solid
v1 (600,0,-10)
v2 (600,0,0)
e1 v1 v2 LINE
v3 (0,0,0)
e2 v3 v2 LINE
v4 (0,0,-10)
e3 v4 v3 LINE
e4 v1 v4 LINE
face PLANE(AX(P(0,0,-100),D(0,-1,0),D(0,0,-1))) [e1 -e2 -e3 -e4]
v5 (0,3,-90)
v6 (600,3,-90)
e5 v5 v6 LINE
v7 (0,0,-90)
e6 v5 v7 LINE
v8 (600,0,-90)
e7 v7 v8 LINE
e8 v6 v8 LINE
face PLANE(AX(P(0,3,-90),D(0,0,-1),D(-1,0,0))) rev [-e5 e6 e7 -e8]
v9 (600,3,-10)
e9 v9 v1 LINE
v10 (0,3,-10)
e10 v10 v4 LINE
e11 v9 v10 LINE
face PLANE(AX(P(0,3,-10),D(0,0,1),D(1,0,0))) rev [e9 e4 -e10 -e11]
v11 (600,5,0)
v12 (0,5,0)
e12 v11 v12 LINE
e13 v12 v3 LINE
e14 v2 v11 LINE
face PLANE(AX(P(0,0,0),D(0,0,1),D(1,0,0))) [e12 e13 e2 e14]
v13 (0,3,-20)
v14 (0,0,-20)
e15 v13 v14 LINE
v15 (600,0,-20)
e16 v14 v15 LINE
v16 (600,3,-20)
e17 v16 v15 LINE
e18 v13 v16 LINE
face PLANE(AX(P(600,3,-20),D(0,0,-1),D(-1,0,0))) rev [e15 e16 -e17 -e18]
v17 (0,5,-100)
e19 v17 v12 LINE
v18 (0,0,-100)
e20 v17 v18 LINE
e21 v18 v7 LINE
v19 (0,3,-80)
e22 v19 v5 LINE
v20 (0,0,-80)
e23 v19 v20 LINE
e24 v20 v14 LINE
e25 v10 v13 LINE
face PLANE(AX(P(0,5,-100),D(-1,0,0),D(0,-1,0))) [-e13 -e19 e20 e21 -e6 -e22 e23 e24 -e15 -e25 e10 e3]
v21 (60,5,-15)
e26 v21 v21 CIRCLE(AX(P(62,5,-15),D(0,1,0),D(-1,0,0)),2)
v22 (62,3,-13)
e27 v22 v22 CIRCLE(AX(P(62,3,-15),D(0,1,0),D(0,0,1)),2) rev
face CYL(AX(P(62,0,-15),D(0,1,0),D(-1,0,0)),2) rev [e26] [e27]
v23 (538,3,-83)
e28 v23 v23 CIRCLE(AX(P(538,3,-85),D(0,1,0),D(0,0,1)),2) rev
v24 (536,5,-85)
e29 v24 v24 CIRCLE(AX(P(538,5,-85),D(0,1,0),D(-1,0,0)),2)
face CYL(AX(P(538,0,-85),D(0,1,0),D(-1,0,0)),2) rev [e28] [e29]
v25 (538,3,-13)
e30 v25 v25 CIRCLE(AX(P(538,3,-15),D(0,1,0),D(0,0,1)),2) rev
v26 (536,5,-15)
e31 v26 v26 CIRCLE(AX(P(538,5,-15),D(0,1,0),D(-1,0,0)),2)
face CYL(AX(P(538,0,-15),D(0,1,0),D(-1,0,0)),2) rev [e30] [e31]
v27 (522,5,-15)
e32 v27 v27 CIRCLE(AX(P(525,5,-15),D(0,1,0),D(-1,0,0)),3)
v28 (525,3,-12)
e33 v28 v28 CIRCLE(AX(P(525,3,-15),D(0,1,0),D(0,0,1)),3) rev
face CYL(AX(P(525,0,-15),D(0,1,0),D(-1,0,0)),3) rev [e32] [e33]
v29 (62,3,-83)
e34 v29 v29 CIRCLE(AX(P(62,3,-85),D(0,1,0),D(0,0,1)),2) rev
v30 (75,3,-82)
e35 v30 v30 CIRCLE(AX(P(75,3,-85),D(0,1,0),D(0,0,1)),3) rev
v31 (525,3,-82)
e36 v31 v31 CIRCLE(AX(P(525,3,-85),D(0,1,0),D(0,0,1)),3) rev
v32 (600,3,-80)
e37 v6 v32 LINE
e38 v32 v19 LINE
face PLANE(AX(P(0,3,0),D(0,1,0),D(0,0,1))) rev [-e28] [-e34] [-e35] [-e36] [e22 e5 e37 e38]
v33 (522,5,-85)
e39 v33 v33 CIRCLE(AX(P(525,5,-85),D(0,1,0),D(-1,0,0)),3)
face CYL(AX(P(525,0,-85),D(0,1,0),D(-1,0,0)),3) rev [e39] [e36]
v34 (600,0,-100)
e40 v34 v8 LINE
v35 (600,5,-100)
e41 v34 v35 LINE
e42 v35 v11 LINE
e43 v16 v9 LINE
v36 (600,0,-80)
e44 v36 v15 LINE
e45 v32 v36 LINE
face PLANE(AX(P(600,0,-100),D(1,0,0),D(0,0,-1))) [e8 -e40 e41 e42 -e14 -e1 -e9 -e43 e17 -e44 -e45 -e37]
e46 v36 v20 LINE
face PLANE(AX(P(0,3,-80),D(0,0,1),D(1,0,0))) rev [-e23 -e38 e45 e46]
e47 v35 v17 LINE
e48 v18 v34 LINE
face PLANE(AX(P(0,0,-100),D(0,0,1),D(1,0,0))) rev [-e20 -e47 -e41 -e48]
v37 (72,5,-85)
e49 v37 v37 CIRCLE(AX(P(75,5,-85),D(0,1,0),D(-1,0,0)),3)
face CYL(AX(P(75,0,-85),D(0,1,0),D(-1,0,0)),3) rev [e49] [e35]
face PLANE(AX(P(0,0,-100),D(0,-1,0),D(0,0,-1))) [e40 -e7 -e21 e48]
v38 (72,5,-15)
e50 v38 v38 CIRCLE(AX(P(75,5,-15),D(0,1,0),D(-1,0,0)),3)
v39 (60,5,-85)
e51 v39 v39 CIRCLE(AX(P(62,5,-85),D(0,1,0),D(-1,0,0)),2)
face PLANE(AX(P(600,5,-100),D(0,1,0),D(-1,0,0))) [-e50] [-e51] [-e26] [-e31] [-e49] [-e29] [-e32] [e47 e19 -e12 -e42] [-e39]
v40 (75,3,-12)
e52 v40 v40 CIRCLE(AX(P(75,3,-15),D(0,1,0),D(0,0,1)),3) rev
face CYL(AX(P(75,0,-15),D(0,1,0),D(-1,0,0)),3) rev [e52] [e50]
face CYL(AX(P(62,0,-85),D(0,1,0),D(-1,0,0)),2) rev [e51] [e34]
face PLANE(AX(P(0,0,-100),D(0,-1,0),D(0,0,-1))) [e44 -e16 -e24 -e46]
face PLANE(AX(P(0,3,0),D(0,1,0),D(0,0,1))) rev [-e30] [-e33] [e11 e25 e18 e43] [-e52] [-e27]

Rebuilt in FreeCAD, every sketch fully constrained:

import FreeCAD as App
import Part
import Sketcher
Q = App.Units.Quantity


def add_polygon(sketch, points):
    """Adds a closed chain of lines whose ends are joined by coincident constraints."""
    first, n = sketch.GeometryCount, len(points)
    for a, b in zip(points, points[1:] + points[:1]):
        sketch.addGeometry(Part.LineSegment(App.Vector(*a, 0), App.Vector(*b, 0)), False)
    for i in range(n):
        sketch.addConstraint(Sketcher.Constraint("Coincident", first + i, 2, first + (i + 1) % n, 1))

doc = App.newDocument("Part")
body = doc.addObject("PartDesign::Body", "Body")

# Sketch on XY plane
sketch1 = body.newObject("Sketcher::SketchObject", "Sketch")
sketch1.AttachmentSupport = (doc.getObject("XY_Plane"), [""])
sketch1.MapMode = "FlatFace"
add_polygon(sketch1, [(0, 5), (0, 0), (600, 0), (600, 5)])  # lines 0-3
sketch1.addConstraint(Sketcher.Constraint("Vertical", 0))
sketch1.addConstraint(Sketcher.Constraint("Horizontal", 1))
sketch1.addConstraint(Sketcher.Constraint("Vertical", 2))
sketch1.addConstraint(Sketcher.Constraint("Horizontal", 3))
sketch1.addConstraint(Sketcher.Constraint("Coincident", 0, 2, -1, 1))
sketch1.addConstraint(Sketcher.Constraint("DistanceX", 1, 1, 1, 2, Q("600 mm")))
sketch1.addConstraint(Sketcher.Constraint("DistanceY", 0, 2, 0, 1, Q("5 mm")))
pad1 = body.newObject("PartDesign::Pad", "Pad")
pad1.Profile = sketch1
pad1.Length = 100
pad1.Reversed = True

# Sketch on XZ plane
sketch2 = body.newObject("Sketcher::SketchObject", "Sketch001")
sketch2.AttachmentSupport = (doc.getObject("XZ_Plane"), [""])
sketch2.MapMode = "FlatFace"
sketch2.AttachmentOffset = App.Placement(App.Vector(0, 0, -5), App.Rotation())
sketch2.addGeometry(Part.Circle(App.Vector(62, -85, 0), App.Vector(0, 0, 1), 2), False)
sketch2.addGeometry(Part.Circle(App.Vector(62, -15, 0), App.Vector(0, 0, 1), 2), False)
sketch2.addGeometry(Part.Circle(App.Vector(538, -85, 0), App.Vector(0, 0, 1), 2), False)
sketch2.addGeometry(Part.Circle(App.Vector(538, -15, 0), App.Vector(0, 0, 1), 2), False)
sketch2.addConstraint(Sketcher.Constraint("Equal", 0, 1))
sketch2.addConstraint(Sketcher.Constraint("Equal", 1, 2))
sketch2.addConstraint(Sketcher.Constraint("Equal", 2, 3))
sketch2.addConstraint(Sketcher.Constraint("Horizontal", 0, 3, 2, 3))
sketch2.addConstraint(Sketcher.Constraint("Horizontal", 1, 3, 3, 3))
sketch2.addConstraint(Sketcher.Constraint("Vertical", 0, 3, 1, 3))
sketch2.addConstraint(Sketcher.Constraint("Vertical", 2, 3, 3, 3))
sketch2.addConstraint(Sketcher.Constraint("Diameter", 0, Q("4 mm")))
sketch2.addConstraint(Sketcher.Constraint("DistanceX", -1, 1, 0, 3, Q("62 mm")))
sketch2.addConstraint(Sketcher.Constraint("DistanceY", 0, 3, -1, 1, Q("85 mm")))
sketch2.addConstraint(Sketcher.Constraint("DistanceY", 1, 3, -1, 1, Q("15 mm")))
sketch2.addConstraint(Sketcher.Constraint("DistanceX", -1, 1, 2, 3, Q("538 mm")))
pocket1 = body.newObject("PartDesign::Pocket", "Pocket")
pocket1.Profile = sketch2
pocket1.Type = "ThroughAll"
pocket1.Reversed = True

# Sketch on XZ plane
sketch3 = body.newObject("Sketcher::SketchObject", "Sketch002")
sketch3.AttachmentSupport = (doc.getObject("XZ_Plane"), [""])
sketch3.MapMode = "FlatFace"
sketch3.AttachmentOffset = App.Placement(App.Vector(0, 0, -5), App.Rotation())
sketch3.addGeometry(Part.Circle(App.Vector(75, -85, 0), App.Vector(0, 0, 1), 3), False)
sketch3.addGeometry(Part.Circle(App.Vector(75, -15, 0), App.Vector(0, 0, 1), 3), False)
sketch3.addGeometry(Part.Circle(App.Vector(525, -85, 0), App.Vector(0, 0, 1), 3), False)
sketch3.addGeometry(Part.Circle(App.Vector(525, -15, 0), App.Vector(0, 0, 1), 3), False)
sketch3.addConstraint(Sketcher.Constraint("Equal", 0, 1))
sketch3.addConstraint(Sketcher.Constraint("Equal", 1, 2))
sketch3.addConstraint(Sketcher.Constraint("Equal", 2, 3))
sketch3.addConstraint(Sketcher.Constraint("Horizontal", 0, 3, 2, 3))
sketch3.addConstraint(Sketcher.Constraint("Horizontal", 1, 3, 3, 3))
sketch3.addConstraint(Sketcher.Constraint("Vertical", 0, 3, 1, 3))
sketch3.addConstraint(Sketcher.Constraint("Vertical", 2, 3, 3, 3))
sketch3.addConstraint(Sketcher.Constraint("Diameter", 0, Q("6 mm")))
sketch3.addConstraint(Sketcher.Constraint("DistanceX", -1, 1, 0, 3, Q("75 mm")))
sketch3.addConstraint(Sketcher.Constraint("DistanceY", 0, 3, -1, 1, Q("85 mm")))
sketch3.addConstraint(Sketcher.Constraint("DistanceY", 1, 3, -1, 1, Q("15 mm")))
sketch3.addConstraint(Sketcher.Constraint("DistanceX", -1, 1, 2, 3, Q("525 mm")))
pocket2 = body.newObject("PartDesign::Pocket", "Pocket001")
pocket2.Profile = sketch3
pocket2.Type = "ThroughAll"
pocket2.Reversed = True

# Sketch on XZ plane
sketch4 = body.newObject("Sketcher::SketchObject", "Sketch003")
sketch4.AttachmentSupport = (doc.getObject("XZ_Plane"), [""])
sketch4.MapMode = "FlatFace"
add_polygon(sketch4, [(0, -10), (0, -20), (600, -20), (600, -10)])  # lines 0-3
add_polygon(sketch4, [(0, -80), (0, -90), (600, -90), (600, -80)])  # lines 4-7
sketch4.addConstraint(Sketcher.Constraint("Vertical", 0))
sketch4.addConstraint(Sketcher.Constraint("Horizontal", 1))
sketch4.addConstraint(Sketcher.Constraint("Vertical", 2))
sketch4.addConstraint(Sketcher.Constraint("Horizontal", 3))
sketch4.addConstraint(Sketcher.Constraint("Vertical", 4))
sketch4.addConstraint(Sketcher.Constraint("Horizontal", 5))
sketch4.addConstraint(Sketcher.Constraint("Vertical", 6))
sketch4.addConstraint(Sketcher.Constraint("Horizontal", 7))
sketch4.addConstraint(Sketcher.Constraint("PointOnObject", 0, 2, -2))
sketch4.addConstraint(Sketcher.Constraint("PointOnObject", 4, 2, -2))
sketch4.addConstraint(Sketcher.Constraint("Vertical", 2, 2, 5, 2))
sketch4.addConstraint(Sketcher.Constraint("Equal", 2, 4))
sketch4.addConstraint(Sketcher.Constraint("DistanceX", 1, 1, 1, 2, Q("600 mm")))
sketch4.addConstraint(Sketcher.Constraint("DistanceY", 0, 2, 0, 1, Q("10 mm")))
sketch4.addConstraint(Sketcher.Constraint("DistanceY", 0, 2, -1, 1, Q("20 mm")))
sketch4.addConstraint(Sketcher.Constraint("DistanceY", 4, 2, -1, 1, Q("90 mm")))
pocket3 = body.newObject("PartDesign::Pocket", "Pocket002")
pocket3.Profile = sketch4
pocket3.Length = 3

doc.recompute()
